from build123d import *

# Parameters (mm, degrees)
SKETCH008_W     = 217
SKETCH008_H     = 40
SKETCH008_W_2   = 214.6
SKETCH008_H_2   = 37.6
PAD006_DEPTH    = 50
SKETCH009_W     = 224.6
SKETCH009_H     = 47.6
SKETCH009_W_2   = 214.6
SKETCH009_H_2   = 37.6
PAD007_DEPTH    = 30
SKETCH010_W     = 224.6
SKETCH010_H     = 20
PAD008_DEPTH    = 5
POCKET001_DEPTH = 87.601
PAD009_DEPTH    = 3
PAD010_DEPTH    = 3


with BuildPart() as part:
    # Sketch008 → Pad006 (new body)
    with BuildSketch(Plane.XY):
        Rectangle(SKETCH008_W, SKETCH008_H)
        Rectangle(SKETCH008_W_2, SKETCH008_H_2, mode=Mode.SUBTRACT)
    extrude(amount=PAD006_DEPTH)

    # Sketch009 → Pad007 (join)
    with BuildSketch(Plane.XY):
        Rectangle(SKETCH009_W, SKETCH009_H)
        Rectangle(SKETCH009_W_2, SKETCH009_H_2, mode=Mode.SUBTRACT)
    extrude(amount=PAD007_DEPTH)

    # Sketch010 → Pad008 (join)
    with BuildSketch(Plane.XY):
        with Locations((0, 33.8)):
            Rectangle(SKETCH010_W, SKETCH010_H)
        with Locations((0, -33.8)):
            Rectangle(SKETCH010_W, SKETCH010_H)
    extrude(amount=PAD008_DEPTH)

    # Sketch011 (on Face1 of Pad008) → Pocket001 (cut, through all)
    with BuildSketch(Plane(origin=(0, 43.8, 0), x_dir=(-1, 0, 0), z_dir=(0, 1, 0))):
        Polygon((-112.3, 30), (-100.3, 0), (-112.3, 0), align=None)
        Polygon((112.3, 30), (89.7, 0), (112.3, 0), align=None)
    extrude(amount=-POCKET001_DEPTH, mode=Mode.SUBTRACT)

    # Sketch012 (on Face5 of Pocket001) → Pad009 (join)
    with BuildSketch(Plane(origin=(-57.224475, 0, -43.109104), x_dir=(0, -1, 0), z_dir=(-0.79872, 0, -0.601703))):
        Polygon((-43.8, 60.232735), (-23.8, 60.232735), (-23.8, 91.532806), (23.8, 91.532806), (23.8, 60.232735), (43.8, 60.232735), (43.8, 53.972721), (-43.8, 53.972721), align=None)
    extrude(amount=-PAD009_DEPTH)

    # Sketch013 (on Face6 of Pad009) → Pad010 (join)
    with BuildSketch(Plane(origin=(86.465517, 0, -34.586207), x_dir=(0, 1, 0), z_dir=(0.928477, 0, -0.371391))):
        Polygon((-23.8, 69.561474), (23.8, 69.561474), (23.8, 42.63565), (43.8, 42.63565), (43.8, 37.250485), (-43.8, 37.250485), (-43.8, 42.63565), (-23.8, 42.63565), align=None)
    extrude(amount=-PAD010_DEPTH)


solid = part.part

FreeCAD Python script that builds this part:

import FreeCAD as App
import Part
import Sketcher
from FreeCAD import Vector
Q = App.Units.Quantity

doc = App.newDocument("Part")
body = doc.addObject("PartDesign::Body", "Body")

# Sketch on XY plane
sketch1 = body.newObject("Sketcher::SketchObject", "Sketch")
sketch1.AttachmentSupport = (doc.getObject("XY_Plane"), [""])
sketch1.MapMode = "FlatFace"
sketch1.addGeometry(Part.LineSegment(Vector(-108.5, 20, 0), Vector(-108.5, -20, 0)), False)
sketch1.addGeometry(Part.LineSegment(Vector(-108.5, -20, 0), Vector(108.5, -20, 0)), False)
sketch1.addGeometry(Part.LineSegment(Vector(108.5, -20, 0), Vector(108.5, 20, 0)), False)
sketch1.addGeometry(Part.LineSegment(Vector(108.5, 20, 0), Vector(-108.5, 20, 0)), False)
sketch1.addGeometry(Part.LineSegment(Vector(107.3, -18.8, 0), Vector(-107.3, -18.8, 0)), False)
sketch1.addGeometry(Part.LineSegment(Vector(-107.3, -18.8, 0), Vector(-107.3, 18.8, 0)), False)
sketch1.addGeometry(Part.LineSegment(Vector(-107.3, 18.8, 0), Vector(107.3, 18.8, 0)), False)
sketch1.addGeometry(Part.LineSegment(Vector(107.3, 18.8, 0), Vector(107.3, -18.8, 0)), False)
sketch1.addConstraint(Sketcher.Constraint("Coincident", 0, 2, 1, 1))
sketch1.addConstraint(Sketcher.Constraint("Coincident", 1, 2, 2, 1))
sketch1.addConstraint(Sketcher.Constraint("Coincident", 2, 2, 3, 1))
sketch1.addConstraint(Sketcher.Constraint("Coincident", 3, 2, 0, 1))
sketch1.addConstraint(Sketcher.Constraint("Coincident", 4, 2, 5, 1))
sketch1.addConstraint(Sketcher.Constraint("Coincident", 5, 2, 6, 1))
sketch1.addConstraint(Sketcher.Constraint("Coincident", 6, 2, 7, 1))
sketch1.addConstraint(Sketcher.Constraint("Coincident", 7, 2, 4, 1))
sketch1.addConstraint(Sketcher.Constraint("Vertical", 0))
sketch1.addConstraint(Sketcher.Constraint("Horizontal", 1))
sketch1.addConstraint(Sketcher.Constraint("Vertical", 2))
sketch1.addConstraint(Sketcher.Constraint("Horizontal", 3))
sketch1.addConstraint(Sketcher.Constraint("Horizontal", 4))
sketch1.addConstraint(Sketcher.Constraint("Vertical", 5))
sketch1.addConstraint(Sketcher.Constraint("Horizontal", 6))
sketch1.addConstraint(Sketcher.Constraint("Vertical", 7))
sketch1.addConstraint(Sketcher.Constraint("Symmetric", 0, 2, 2, 2, -1, 1))
sketch1.addConstraint(Sketcher.Constraint("Symmetric", 4, 2, 6, 2, -1, 1))
sketch1.addConstraint(Sketcher.Constraint("DistanceX", 1, 1, 1, 2, Q("217 mm")))
sketch1.addConstraint(Sketcher.Constraint("DistanceY", 0, 2, 0, 1, Q("40 mm")))
sketch1.addConstraint(Sketcher.Constraint("DistanceX", 4, 2, 4, 1, Q("214.6 mm")))
sketch1.addConstraint(Sketcher.Constraint("DistanceY", 5, 1, 5, 2, Q("37.6 mm")))
pad1 = body.newObject("PartDesign::Pad", "Pad")
pad1.Profile = sketch1
pad1.Length = 50

# Sketch on XY plane
sketch2 = body.newObject("Sketcher::SketchObject", "Sketch001")
sketch2.AttachmentSupport = (doc.getObject("XY_Plane"), [""])
sketch2.MapMode = "FlatFace"
sketch2.addGeometry(Part.LineSegment(Vector(-112.3, 23.8, 0), Vector(-112.3, -23.8, 0)), False)
sketch2.addGeometry(Part.LineSegment(Vector(-112.3, -23.8, 0), Vector(112.3, -23.8, 0)), False)
sketch2.addGeometry(Part.LineSegment(Vector(112.3, -23.8, 0), Vector(112.3, 23.8, 0)), False)
sketch2.addGeometry(Part.LineSegment(Vector(112.3, 23.8, 0), Vector(-112.3, 23.8, 0)), False)
sketch2.addGeometry(Part.LineSegment(Vector(107.3, -18.8, 0), Vector(-107.3, -18.8, 0)), False)
sketch2.addGeometry(Part.LineSegment(Vector(-107.3, -18.8, 0), Vector(-107.3, 18.8, 0)), False)
sketch2.addGeometry(Part.LineSegment(Vector(-107.3, 18.8, 0), Vector(107.3, 18.8, 0)), False)
sketch2.addGeometry(Part.LineSegment(Vector(107.3, 18.8, 0), Vector(107.3, -18.8, 0)), False)
sketch2.addConstraint(Sketcher.Constraint("Coincident", 0, 2, 1, 1))
sketch2.addConstraint(Sketcher.Constraint("Coincident", 1, 2, 2, 1))
sketch2.addConstraint(Sketcher.Constraint("Coincident", 2, 2, 3, 1))
sketch2.addConstraint(Sketcher.Constraint("Coincident", 3, 2, 0, 1))
sketch2.addConstraint(Sketcher.Constraint("Coincident", 4, 2, 5, 1))
sketch2.addConstraint(Sketcher.Constraint("Coincident", 5, 2, 6, 1))
sketch2.addConstraint(Sketcher.Constraint("Coincident", 6, 2, 7, 1))
sketch2.addConstraint(Sketcher.Constraint("Coincident", 7, 2, 4, 1))
sketch2.addConstraint(Sketcher.Constraint("Vertical", 0))
sketch2.addConstraint(Sketcher.Constraint("Horizontal", 1))
sketch2.addConstraint(Sketcher.Constraint("Vertical", 2))
sketch2.addConstraint(Sketcher.Constraint("Horizontal", 3))
sketch2.addConstraint(Sketcher.Constraint("Horizontal", 4))
sketch2.addConstraint(Sketcher.Constraint("Vertical", 5))
sketch2.addConstraint(Sketcher.Constraint("Horizontal", 6))
sketch2.addConstraint(Sketcher.Constraint("Vertical", 7))
sketch2.addConstraint(Sketcher.Constraint("Symmetric", 0, 2, 2, 2, -1, 1))
sketch2.addConstraint(Sketcher.Constraint("Symmetric", 4, 2, 6, 2, -1, 1))
sketch2.addConstraint(Sketcher.Constraint("DistanceX", 1, 1, 1, 2, Q("224.6 mm")))
sketch2.addConstraint(Sketcher.Constraint("DistanceX", 4, 2, 4, 1, Q("214.6 mm")))
sketch2.addConstraint(Sketcher.Constraint("DistanceY", 0, 2, 0, 1, Q("47.6 mm")))
sketch2.addConstraint(Sketcher.Constraint("DistanceY", 5, 1, 5, 2, Q("37.6 mm")))
pad2 = body.newObject("PartDesign::Pad", "Pad001")
pad2.Profile = sketch2
pad2.Length = 30

# Sketch on XY plane
sketch3 = body.newObject("Sketcher::SketchObject", "Sketch002")
sketch3.AttachmentSupport = (doc.getObject("XY_Plane"), [""])
sketch3.MapMode = "FlatFace"
sketch3.addGeometry(Part.LineSegment(Vector(-112.3, 43.8, 0), Vector(-112.3, 23.8, 0)), False)
sketch3.addGeometry(Part.LineSegment(Vector(-112.3, 23.8, 0), Vector(112.3, 23.8, 0)), False)
sketch3.addGeometry(Part.LineSegment(Vector(112.3, 23.8, 0), Vector(112.3, 43.8, 0)), False)
sketch3.addGeometry(Part.LineSegment(Vector(112.3, 43.8, 0), Vector(-112.3, 43.8, 0)), False)
sketch3.addGeometry(Part.LineSegment(Vector(-112.3, -23.8, 0), Vector(-112.3, -43.8, 0)), False)
sketch3.addGeometry(Part.LineSegment(Vector(-112.3, -43.8, 0), Vector(112.3, -43.8, 0)), False)
sketch3.addGeometry(Part.LineSegment(Vector(112.3, -43.8, 0), Vector(112.3, -23.8, 0)), False)
sketch3.addGeometry(Part.LineSegment(Vector(112.3, -23.8, 0), Vector(-112.3, -23.8, 0)), False)
sketch3.addConstraint(Sketcher.Constraint("Coincident", 0, 2, 1, 1))
sketch3.addConstraint(Sketcher.Constraint("Coincident", 1, 2, 2, 1))
sketch3.addConstraint(Sketcher.Constraint("Coincident", 2, 2, 3, 1))
sketch3.addConstraint(Sketcher.Constraint("Coincident", 3, 2, 0, 1))
sketch3.addConstraint(Sketcher.Constraint("Coincident", 4, 2, 5, 1))
sketch3.addConstraint(Sketcher.Constraint("Coincident", 5, 2, 6, 1))
sketch3.addConstraint(Sketcher.Constraint("Coincident", 6, 2, 7, 1))
sketch3.addConstraint(Sketcher.Constraint("Coincident", 7, 2, 4, 1))
sketch3.addConstraint(Sketcher.Constraint("Vertical", 0))
sketch3.addConstraint(Sketcher.Constraint("Horizontal", 1))
sketch3.addConstraint(Sketcher.Constraint("Vertical", 2))
sketch3.addConstraint(Sketcher.Constraint("Horizontal", 3))
sketch3.addConstraint(Sketcher.Constraint("Vertical", 4))
sketch3.addConstraint(Sketcher.Constraint("Horizontal", 5))
sketch3.addConstraint(Sketcher.Constraint("Vertical", 6))
sketch3.addConstraint(Sketcher.Constraint("Horizontal", 7))
sketch3.addConstraint(Sketcher.Constraint("Symmetric", 2, 2, 4, 2, -1, 1))
sketch3.addConstraint(Sketcher.Constraint("Symmetric", 0, 2, 6, 2, -1, 1))
sketch3.addConstraint(Sketcher.Constraint("Vertical", 3, 2, 4, 2))
sketch3.addConstraint(Sketcher.Constraint("DistanceY", 0, 2, 0, 1, Q("20 mm")))
sketch3.addConstraint(Sketcher.Constraint("DistanceX", 1, 1, 1, 2, Q("224.6 mm")))
sketch3.addConstraint(Sketcher.Constraint("DistanceY", -1, 1, 0, 2, Q("23.8 mm")))
pad3 = body.newObject("PartDesign::Pad", "Pad002")
pad3.Profile = sketch3
pad3.Length = 5

# Sketch on XZ plane
sketch4 = body.newObject("Sketcher::SketchObject", "Sketch003")
sketch4.AttachmentSupport = (doc.getObject("XZ_Plane"), [""])
sketch4.MapMode = "FlatFace"
sketch4.AttachmentOffset = App.Placement(Vector(0, 0, -43.8), App.Rotation())
sketch4.addGeometry(Part.LineSegment(Vector(100.3, 0, 0), Vector(112.3, 30, 0)), False)
sketch4.addGeometry(Part.LineSegment(Vector(112.3, 30, 0), Vector(112.3, 0, 0)), False)
sketch4.addGeometry(Part.LineSegment(Vector(112.3, 0, 0), Vector(100.3, 0, 0)), False)
sketch4.addGeometry(Part.LineSegment(Vector(-112.3, 30, 0), Vector(-89.7, 0, 0)), False)
sketch4.addGeometry(Part.LineSegment(Vector(-89.7, 0, 0), Vector(-112.3, 0, 0)), False)
sketch4.addGeometry(Part.LineSegment(Vector(-112.3, 0, 0), Vector(-112.3, 30, 0)), False)
sketch4.addConstraint(Sketcher.Constraint("Coincident", 0, 2, 1, 1))
sketch4.addConstraint(Sketcher.Constraint("Coincident", 1, 2, 2, 1))
sketch4.addConstraint(Sketcher.Constraint("Coincident", 2, 2, 0, 1))
sketch4.addConstraint(Sketcher.Constraint("Coincident", 3, 2, 4, 1))
sketch4.addConstraint(Sketcher.Constraint("Coincident", 4, 2, 5, 1))
sketch4.addConstraint(Sketcher.Constraint("Coincident", 5, 2, 3, 1))
sketch4.addConstraint(Sketcher.Constraint("Vertical", 1))
sketch4.addConstraint(Sketcher.Constraint("Horizontal", 2))
sketch4.addConstraint(Sketcher.Constraint("Horizontal", 4))
sketch4.addConstraint(Sketcher.Constraint("Vertical", 5))
sketch4.addConstraint(Sketcher.Constraint("Symmetric", 1, 2, 4, 2, -1, 1))
sketch4.addConstraint(Sketcher.Constraint("PointOnObject", 1, 2, -1))
sketch4.addConstraint(Sketcher.Constraint("Horizontal", 0, 2, 5, 2))
sketch4.addConstraint(Sketcher.Constraint("DistanceX", 2, 2, 2, 1, Q("12 mm")))
sketch4.addConstraint(Sketcher.Constraint("DistanceY", 1, 2, 1, 1, Q("30 mm")))
sketch4.addConstraint(Sketcher.Constraint("DistanceX", 4, 2, 4, 1, Q("22.6 mm")))
sketch4.addConstraint(Sketcher.Constraint("DistanceX", 3, 2, 2, 2, Q("190 mm")))
pocket1 = body.newObject("PartDesign::Pocket", "Pocket")
pocket1.Profile = sketch4
pocket1.Type = "ThroughAll"
pocket1.Reversed = True

# Sketch on an angled plane
sketch5 = body.newObject("Sketcher::SketchObject", "Sketch004")
sketch5.Placement = App.Placement(Vector(-57.224475, 0, -43.109104), App.Rotation(Vector(0, -1, 0), Vector(-0.601702958, 0, 0.798719945), Vector(-0.798719945, 0, -0.601702958), "ZXY"))
sketch5.addGeometry(Part.LineSegment(Vector(-23.8, 60.232735, 0), Vector(-43.8, 60.232735, 0)), False)
sketch5.addGeometry(Part.LineSegment(Vector(-43.8, 60.232735, 0), Vector(-43.8, 53.972721, 0)), False)
sketch5.addGeometry(Part.LineSegment(Vector(-43.8, 53.972721, 0), Vector(43.8, 53.972721, 0)), False)
sketch5.addGeometry(Part.LineSegment(Vector(43.8, 53.972721, 0), Vector(43.8, 60.232735, 0)), False)
sketch5.addGeometry(Part.LineSegment(Vector(43.8, 60.232735, 0), Vector(23.8, 60.232735, 0)), False)
sketch5.addGeometry(Part.LineSegment(Vector(23.8, 60.232735, 0), Vector(23.8, 91.532806, 0)), False)
sketch5.addGeometry(Part.LineSegment(Vector(23.8, 91.532806, 0), Vector(-23.8, 91.532806, 0)), False)
sketch5.addGeometry(Part.LineSegment(Vector(-23.8, 91.532806, 0), Vector(-23.8, 60.232735, 0)), False)
sketch5.addConstraint(Sketcher.Constraint("Coincident", 0, 2, 1, 1))
sketch5.addConstraint(Sketcher.Constraint("Coincident", 1, 2, 2, 1))
sketch5.addConstraint(Sketcher.Constraint("Coincident", 2, 2, 3, 1))
sketch5.addConstraint(Sketcher.Constraint("Coincident", 3, 2, 4, 1))
sketch5.addConstraint(Sketcher.Constraint("Coincident", 4, 2, 5, 1))
sketch5.addConstraint(Sketcher.Constraint("Coincident", 5, 2, 6, 1))
sketch5.addConstraint(Sketcher.Constraint("Coincident", 6, 2, 7, 1))
sketch5.addConstraint(Sketcher.Constraint("Coincident", 7, 2, 0, 1))
sketch5.addConstraint(Sketcher.Constraint("Horizontal", 0))
sketch5.addConstraint(Sketcher.Constraint("Vertical", 1))
sketch5.addConstraint(Sketcher.Constraint("Horizontal", 2))
sketch5.addConstraint(Sketcher.Constraint("Vertical", 3))
sketch5.addConstraint(Sketcher.Constraint("Horizontal", 4))
sketch5.addConstraint(Sketcher.Constraint("Vertical", 5))
sketch5.addConstraint(Sketcher.Constraint("Horizontal", 6))
sketch5.addConstraint(Sketcher.Constraint("Vertical", 7))
sketch5.addConstraint(Sketcher.Constraint("Symmetric", 0, 2, 3, 2, -2))
sketch5.addConstraint(Sketcher.Constraint("Equal", 0, 4))
sketch5.addConstraint(Sketcher.Constraint("DistanceX", 0, 2, 0, 1, Q("20 mm")))
sketch5.addConstraint(Sketcher.Constraint("DistanceX", 2, 1, 2, 2, Q("87.6 mm")))
sketch5.addConstraint(Sketcher.Constraint("DistanceY", 5, 1, 5, 2, Q("31.300071 mm")))
sketch5.addConstraint(Sketcher.Constraint("DistanceY", 1, 2, 1, 1, Q("6.260014 mm")))
sketch5.addConstraint(Sketcher.Constraint("DistanceY", -1, 1, 1, 2, Q("53.972721 mm")))
pad4 = body.newObject("PartDesign::Pad", "Pad003")
pad4.Profile = sketch5
pad4.Length = 3
pad4.Reversed = True

# Sketch on an angled plane
sketch6 = body.newObject("Sketcher::SketchObject", "Sketch005")
sketch6.Placement = App.Placement(Vector(86.465517, 0, -34.586207), App.Rotation(Vector(0, 1, 0), Vector(0.371390849, 0, 0.928476622), Vector(0.928476622, 0, -0.371390849), "ZXY"))
sketch6.addGeometry(Part.LineSegment(Vector(23.8, 69.561474, 0), Vector(-23.8, 69.561474, 0)), False)
sketch6.addGeometry(Part.LineSegment(Vector(-23.8, 69.561474, 0), Vector(-23.8, 42.63565, 0)), False)
sketch6.addGeometry(Part.LineSegment(Vector(-23.8, 42.63565, 0), Vector(-43.8, 42.63565, 0)), False)
sketch6.addGeometry(Part.LineSegment(Vector(-43.8, 42.63565, 0), Vector(-43.8, 37.250485, 0)), False)
sketch6.addGeometry(Part.LineSegment(Vector(-43.8, 37.250485, 0), Vector(43.8, 37.250485, 0)), False)
sketch6.addGeometry(Part.LineSegment(Vector(43.8, 37.250485, 0), Vector(43.8, 42.63565, 0)), False)
sketch6.addGeometry(Part.LineSegment(Vector(43.8, 42.63565, 0), Vector(23.8, 42.63565, 0)), False)
sketch6.addGeometry(Part.LineSegment(Vector(23.8, 42.63565, 0), Vector(23.8, 69.561474, 0)), False)
sketch6.addConstraint(Sketcher.Constraint("Coincident", 0, 2, 1, 1))
sketch6.addConstraint(Sketcher.Constraint("Coincident", 1, 2, 2, 1))
sketch6.addConstraint(Sketcher.Constraint("Coincident", 2, 2, 3, 1))
sketch6.addConstraint(Sketcher.Constraint("Coincident", 3, 2, 4, 1))
sketch6.addConstraint(Sketcher.Constraint("Coincident", 4, 2, 5, 1))
sketch6.addConstraint(Sketcher.Constraint("Coincident", 5, 2, 6, 1))
sketch6.addConstraint(Sketcher.Constraint("Coincident", 6, 2, 7, 1))
sketch6.addConstraint(Sketcher.Constraint("Coincident", 7, 2, 0, 1))
sketch6.addConstraint(Sketcher.Constraint("Horizontal", 0))
sketch6.addConstraint(Sketcher.Constraint("Vertical", 1))
sketch6.addConstraint(Sketcher.Constraint("Horizontal", 2))
sketch6.addConstraint(Sketcher.Constraint("Vertical", 3))
sketch6.addConstraint(Sketcher.Constraint("Horizontal", 4))
sketch6.addConstraint(Sketcher.Constraint("Vertical", 5))
sketch6.addConstraint(Sketcher.Constraint("Horizontal", 6))
sketch6.addConstraint(Sketcher.Constraint("Vertical", 7))
sketch6.addConstraint(Sketcher.Constraint("Symmetric", 2, 2, 5, 2, -2))
sketch6.addConstraint(Sketcher.Constraint("Equal", 2, 6))
sketch6.addConstraint(Sketcher.Constraint("DistanceX", 2, 2, 2, 1, Q("20 mm")))
sketch6.addConstraint(Sketcher.Constraint("DistanceX", 0, 2, 0, 1, Q("47.6 mm")))
sketch6.addConstraint(Sketcher.Constraint("DistanceY", 1, 2, 1, 1, Q("26.925824 mm")))
sketch6.addConstraint(Sketcher.Constraint("DistanceY", 3, 2, 3, 1, Q("5.385165 mm")))
sketch6.addConstraint(Sketcher.Constraint("DistanceY", -1, 1, 1, 2, Q("42.63565 mm")))
pad5 = body.newObject("PartDesign::Pad", "Pad004")
pad5.Profile = sketch6
pad5.Length = 3
pad5.Reversed = True

doc.recompute()
